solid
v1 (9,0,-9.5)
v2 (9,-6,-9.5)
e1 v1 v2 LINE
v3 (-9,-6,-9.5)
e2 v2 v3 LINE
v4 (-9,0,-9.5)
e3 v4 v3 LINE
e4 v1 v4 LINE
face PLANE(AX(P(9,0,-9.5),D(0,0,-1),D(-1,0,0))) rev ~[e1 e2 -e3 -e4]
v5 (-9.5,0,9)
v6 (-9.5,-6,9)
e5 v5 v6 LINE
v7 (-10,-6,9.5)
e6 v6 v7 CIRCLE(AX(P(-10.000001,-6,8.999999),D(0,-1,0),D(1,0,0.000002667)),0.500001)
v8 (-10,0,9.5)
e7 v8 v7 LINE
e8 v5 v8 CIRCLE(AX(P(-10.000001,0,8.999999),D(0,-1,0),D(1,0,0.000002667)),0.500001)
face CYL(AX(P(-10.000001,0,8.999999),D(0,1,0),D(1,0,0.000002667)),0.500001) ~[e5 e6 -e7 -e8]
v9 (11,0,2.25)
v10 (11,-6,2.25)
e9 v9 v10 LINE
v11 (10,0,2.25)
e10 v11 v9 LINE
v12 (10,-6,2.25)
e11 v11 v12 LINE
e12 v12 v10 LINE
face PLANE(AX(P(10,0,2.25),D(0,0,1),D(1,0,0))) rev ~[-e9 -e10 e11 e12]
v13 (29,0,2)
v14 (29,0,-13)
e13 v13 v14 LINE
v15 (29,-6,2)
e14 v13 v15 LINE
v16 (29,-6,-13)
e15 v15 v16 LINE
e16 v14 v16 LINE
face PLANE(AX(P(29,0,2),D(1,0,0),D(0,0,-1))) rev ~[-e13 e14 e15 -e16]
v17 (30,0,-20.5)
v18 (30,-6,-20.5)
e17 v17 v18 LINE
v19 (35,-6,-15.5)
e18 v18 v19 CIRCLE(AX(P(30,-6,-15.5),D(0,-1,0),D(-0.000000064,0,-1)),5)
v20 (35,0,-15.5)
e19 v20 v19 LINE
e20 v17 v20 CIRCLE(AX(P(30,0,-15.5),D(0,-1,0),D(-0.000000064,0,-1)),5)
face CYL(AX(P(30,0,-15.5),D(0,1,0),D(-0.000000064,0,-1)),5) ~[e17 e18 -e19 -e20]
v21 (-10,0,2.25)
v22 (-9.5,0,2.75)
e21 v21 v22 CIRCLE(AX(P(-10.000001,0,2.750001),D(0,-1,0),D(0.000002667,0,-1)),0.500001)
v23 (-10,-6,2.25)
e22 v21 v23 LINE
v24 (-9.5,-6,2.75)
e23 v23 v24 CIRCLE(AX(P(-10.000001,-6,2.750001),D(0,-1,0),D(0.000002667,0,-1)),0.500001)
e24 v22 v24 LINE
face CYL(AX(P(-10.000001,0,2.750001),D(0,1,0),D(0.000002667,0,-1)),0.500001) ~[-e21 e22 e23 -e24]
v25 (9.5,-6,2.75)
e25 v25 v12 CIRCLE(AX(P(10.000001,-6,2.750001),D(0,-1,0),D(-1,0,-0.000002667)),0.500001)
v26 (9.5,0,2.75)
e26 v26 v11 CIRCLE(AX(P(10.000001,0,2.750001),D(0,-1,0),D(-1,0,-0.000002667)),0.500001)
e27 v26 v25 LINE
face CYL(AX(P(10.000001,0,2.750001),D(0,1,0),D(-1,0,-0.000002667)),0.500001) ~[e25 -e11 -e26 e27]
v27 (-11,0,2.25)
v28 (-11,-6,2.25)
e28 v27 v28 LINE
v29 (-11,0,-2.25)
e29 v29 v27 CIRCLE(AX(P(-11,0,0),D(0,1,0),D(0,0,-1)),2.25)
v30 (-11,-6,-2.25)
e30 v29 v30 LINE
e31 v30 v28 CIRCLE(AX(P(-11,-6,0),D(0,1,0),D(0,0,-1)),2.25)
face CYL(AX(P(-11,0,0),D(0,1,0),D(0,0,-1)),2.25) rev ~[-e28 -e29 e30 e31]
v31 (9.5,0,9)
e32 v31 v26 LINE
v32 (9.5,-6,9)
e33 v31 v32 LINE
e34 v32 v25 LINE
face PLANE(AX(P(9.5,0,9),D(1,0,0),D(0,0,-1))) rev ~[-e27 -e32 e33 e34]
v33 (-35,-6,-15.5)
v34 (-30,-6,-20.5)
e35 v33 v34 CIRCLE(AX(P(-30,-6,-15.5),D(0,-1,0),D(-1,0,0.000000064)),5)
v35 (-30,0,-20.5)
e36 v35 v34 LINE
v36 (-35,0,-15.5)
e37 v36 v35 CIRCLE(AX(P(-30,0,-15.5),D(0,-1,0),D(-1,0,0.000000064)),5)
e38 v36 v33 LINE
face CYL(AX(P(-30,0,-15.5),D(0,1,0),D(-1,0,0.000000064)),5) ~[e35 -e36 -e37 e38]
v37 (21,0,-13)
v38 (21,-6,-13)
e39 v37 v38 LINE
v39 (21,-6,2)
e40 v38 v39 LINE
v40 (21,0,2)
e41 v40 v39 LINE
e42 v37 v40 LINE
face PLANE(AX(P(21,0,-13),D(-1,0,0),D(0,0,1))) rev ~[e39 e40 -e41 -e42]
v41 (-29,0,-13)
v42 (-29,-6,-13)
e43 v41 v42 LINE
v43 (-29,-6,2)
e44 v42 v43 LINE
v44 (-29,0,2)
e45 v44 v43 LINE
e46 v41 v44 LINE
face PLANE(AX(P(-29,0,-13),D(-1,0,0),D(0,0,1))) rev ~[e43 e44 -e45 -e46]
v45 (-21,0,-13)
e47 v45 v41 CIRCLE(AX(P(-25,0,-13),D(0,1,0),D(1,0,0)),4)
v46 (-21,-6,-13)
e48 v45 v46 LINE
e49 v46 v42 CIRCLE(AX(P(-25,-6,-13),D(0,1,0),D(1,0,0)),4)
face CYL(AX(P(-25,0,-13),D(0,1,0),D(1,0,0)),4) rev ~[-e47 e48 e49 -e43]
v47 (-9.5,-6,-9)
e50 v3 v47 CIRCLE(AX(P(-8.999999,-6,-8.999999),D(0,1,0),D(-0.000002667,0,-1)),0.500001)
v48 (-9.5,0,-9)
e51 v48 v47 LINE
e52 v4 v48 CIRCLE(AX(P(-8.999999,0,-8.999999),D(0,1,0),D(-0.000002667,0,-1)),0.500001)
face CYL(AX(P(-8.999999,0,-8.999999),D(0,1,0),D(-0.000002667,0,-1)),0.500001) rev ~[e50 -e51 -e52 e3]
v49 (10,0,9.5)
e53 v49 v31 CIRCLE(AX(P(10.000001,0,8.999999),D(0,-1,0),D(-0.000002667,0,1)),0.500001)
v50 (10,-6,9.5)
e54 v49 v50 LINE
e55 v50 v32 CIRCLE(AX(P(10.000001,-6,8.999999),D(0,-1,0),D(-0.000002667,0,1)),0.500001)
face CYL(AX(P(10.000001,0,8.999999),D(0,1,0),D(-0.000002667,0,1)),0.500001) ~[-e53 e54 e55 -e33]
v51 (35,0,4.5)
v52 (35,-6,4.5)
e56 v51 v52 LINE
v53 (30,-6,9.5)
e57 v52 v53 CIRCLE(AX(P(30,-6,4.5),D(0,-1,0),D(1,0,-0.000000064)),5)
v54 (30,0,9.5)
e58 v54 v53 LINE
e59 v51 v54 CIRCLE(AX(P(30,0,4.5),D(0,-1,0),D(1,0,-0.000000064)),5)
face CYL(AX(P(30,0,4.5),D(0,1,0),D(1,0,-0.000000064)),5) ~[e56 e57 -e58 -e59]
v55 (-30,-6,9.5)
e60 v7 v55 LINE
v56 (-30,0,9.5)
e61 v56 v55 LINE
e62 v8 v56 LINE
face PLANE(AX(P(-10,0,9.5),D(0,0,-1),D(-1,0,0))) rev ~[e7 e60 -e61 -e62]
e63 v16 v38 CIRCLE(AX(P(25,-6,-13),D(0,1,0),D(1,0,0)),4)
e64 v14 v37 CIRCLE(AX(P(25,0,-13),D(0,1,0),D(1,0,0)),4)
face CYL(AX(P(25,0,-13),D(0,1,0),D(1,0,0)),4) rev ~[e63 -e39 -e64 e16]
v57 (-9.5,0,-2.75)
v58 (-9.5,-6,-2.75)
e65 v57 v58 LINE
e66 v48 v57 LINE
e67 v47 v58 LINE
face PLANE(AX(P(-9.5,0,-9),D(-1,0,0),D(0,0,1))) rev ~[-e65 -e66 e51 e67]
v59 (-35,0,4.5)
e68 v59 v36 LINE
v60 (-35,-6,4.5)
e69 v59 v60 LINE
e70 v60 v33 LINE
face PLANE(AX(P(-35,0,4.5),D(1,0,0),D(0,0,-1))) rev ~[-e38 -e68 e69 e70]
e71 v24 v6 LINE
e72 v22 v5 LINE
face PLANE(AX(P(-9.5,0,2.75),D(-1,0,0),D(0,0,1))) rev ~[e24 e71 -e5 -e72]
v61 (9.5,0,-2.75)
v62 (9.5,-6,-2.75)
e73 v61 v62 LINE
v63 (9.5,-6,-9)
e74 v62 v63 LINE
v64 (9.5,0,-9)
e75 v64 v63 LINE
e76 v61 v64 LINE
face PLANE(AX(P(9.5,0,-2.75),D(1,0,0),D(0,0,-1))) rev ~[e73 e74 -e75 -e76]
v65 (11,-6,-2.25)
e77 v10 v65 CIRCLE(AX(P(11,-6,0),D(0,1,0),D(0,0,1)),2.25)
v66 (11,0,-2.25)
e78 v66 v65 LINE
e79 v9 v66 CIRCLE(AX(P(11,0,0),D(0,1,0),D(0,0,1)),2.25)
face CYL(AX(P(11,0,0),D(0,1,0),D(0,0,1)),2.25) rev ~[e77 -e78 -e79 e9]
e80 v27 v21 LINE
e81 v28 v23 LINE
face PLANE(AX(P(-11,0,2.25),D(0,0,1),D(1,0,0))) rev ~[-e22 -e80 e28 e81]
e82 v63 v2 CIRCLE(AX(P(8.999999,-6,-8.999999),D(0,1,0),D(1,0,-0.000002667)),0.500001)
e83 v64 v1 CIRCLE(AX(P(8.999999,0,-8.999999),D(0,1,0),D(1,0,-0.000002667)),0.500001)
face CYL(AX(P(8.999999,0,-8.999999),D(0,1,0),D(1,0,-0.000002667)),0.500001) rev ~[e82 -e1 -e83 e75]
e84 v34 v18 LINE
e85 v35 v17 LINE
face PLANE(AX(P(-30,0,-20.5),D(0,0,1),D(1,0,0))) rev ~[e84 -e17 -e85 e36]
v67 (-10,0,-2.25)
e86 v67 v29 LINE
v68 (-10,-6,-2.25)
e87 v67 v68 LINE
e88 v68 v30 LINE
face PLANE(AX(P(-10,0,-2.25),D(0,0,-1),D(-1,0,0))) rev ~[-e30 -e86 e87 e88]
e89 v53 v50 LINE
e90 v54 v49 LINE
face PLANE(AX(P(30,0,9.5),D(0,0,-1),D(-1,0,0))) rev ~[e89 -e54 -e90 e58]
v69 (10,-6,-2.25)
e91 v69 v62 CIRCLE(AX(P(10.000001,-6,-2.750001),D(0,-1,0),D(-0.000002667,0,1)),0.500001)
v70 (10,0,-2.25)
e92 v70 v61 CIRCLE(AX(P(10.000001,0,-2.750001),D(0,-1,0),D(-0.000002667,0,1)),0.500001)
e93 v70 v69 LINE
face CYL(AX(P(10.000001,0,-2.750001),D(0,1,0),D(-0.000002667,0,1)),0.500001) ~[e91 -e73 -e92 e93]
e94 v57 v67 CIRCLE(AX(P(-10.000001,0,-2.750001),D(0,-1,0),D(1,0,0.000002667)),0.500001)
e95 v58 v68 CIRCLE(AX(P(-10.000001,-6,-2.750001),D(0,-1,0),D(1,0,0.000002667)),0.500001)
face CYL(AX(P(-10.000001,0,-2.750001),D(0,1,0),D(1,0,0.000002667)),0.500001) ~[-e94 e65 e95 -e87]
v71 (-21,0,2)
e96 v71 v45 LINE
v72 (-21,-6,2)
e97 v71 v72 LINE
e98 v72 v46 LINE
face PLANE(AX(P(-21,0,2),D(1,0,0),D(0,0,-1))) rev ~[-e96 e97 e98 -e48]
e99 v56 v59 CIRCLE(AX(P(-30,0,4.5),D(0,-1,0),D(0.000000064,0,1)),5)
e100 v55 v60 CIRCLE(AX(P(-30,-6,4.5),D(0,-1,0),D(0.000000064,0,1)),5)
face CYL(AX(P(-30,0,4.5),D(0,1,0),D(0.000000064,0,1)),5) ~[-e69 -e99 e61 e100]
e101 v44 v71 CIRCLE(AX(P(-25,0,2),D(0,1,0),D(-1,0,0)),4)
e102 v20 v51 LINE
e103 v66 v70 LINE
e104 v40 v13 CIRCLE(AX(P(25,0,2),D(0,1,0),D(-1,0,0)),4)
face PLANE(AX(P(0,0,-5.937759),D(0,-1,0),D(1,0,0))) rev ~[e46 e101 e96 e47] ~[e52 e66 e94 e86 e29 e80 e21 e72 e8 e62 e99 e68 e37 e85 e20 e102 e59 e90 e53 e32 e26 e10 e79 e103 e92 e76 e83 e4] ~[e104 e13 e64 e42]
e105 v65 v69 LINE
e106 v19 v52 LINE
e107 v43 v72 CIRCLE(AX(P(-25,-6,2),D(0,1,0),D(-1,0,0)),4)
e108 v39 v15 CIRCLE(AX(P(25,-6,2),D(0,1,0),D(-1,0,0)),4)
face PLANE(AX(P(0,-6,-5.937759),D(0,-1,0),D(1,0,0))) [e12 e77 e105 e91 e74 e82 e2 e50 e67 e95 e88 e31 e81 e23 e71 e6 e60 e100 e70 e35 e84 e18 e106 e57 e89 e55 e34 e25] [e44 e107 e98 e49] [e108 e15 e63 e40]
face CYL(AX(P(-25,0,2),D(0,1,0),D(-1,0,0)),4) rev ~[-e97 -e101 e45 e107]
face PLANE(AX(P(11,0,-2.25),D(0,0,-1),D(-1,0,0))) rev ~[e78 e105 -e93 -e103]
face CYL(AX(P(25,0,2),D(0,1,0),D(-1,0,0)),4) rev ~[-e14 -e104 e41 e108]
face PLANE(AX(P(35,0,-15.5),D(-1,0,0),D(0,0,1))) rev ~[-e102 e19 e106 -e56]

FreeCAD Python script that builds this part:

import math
import FreeCAD as App
import Part
import Sketcher

V = App.Vector

doc = App.newDocument("Part")
params = doc.addObject("Spreadsheet::Sheet", "Params")
for row, (alias, value) in enumerate([
    ("sketch1_radius", "5 mm"),
    ("sketch1_radius2", "4 mm"),
    ("sketch1_radius3", "0.500001 mm"),
    ("sketch1_width", "1 mm"),
    ("sketch1_width2", "20 mm"),
    ("pad1_length", "6 mm"),
], start=1):
    params.set(f"A{row}", alias)
    params.set(f"B{row}", "=" + value)
    params.setAlias(f"B{row}", alias)

body = doc.addObject("PartDesign::Body", "Body")

sketch1 = body.newObject("Sketcher::SketchObject", "Sketch")
sketch1.AttachmentSupport = (doc.getObject("XZ_Plane"), [""])
sketch1.MapMode = "FlatFace"
sketch1.addGeometry([
    Part.ArcOfCircle(Part.Circle(V(-9, -9, 0), V(0, 0, 1), 0.5), math.radians(-180), math.radians(-90)),
    Part.LineSegment(V(-9.5, -9, 0), V(-9.5, -2.8, 0)),
    Part.ArcOfCircle(Part.Circle(V(-10, -2.8, 0), V(0, 0, 1), 0.5), math.radians(0), math.radians(90)),
    Part.LineSegment(V(-10, -2.2, 0), V(-11, -2.2, 0)),
    Part.ArcOfCircle(Part.Circle(V(-11, 0, 0), V(0, 0, 1), 2.2), math.radians(90), math.radians(270)),
    Part.LineSegment(V(-11, 2.2, 0), V(-10, 2.2, 0)),
    Part.ArcOfCircle(Part.Circle(V(-10, 2.8, 0), V(0, 0, 1), 0.5), math.radians(-90), math.radians(0)),
    Part.LineSegment(V(-9.5, 2.8, 0), V(-9.5, 9, 0)),
    Part.ArcOfCircle(Part.Circle(V(-10, 9, 0), V(0, 0, 1), 0.5), math.radians(0), math.radians(90)),
    Part.LineSegment(V(-10, 9.5, 0), V(-30, 9.5, 0)),
    Part.ArcOfCircle(Part.Circle(V(-30, 4.5, 0), V(0, 0, 1), 5), math.radians(90), math.radians(180)),
    Part.LineSegment(V(-35, 4.5, 0), V(-35, -15.5, 0)),
    Part.ArcOfCircle(Part.Circle(V(-30, -15.5, 0), V(0, 0, 1), 5), math.radians(180), math.radians(270)),
    Part.LineSegment(V(-30, -20.5, 0), V(30, -20.5, 0)),
    Part.ArcOfCircle(Part.Circle(V(30, -15.5, 0), V(0, 0, 1), 5), math.radians(-90), math.radians(0)),
    Part.LineSegment(V(35, -15.5, 0), V(35, 4.5, 0)),
    Part.ArcOfCircle(Part.Circle(V(30, 4.5, 0), V(0, 0, 1), 5), math.radians(0), math.radians(90)),
    Part.LineSegment(V(30, 9.5, 0), V(10, 9.5, 0)),
    Part.ArcOfCircle(Part.Circle(V(10, 9, 0), V(0, 0, 1), 0.5), math.radians(90), math.radians(180)),
    Part.LineSegment(V(9.5, 9, 0), V(9.5, 2.8, 0)),
    Part.ArcOfCircle(Part.Circle(V(10, 2.8, 0), V(0, 0, 1), 0.5), math.radians(-180), math.radians(-90)),
    Part.LineSegment(V(10, 2.2, 0), V(11, 2.2, 0)),
    Part.ArcOfCircle(Part.Circle(V(11, 0, 0), V(0, 0, 1), 2.2), math.radians(-90), math.radians(90)),
    Part.LineSegment(V(11, -2.2, 0), V(10, -2.2, 0)),
    Part.ArcOfCircle(Part.Circle(V(10, -2.8, 0), V(0, 0, 1), 0.5), math.radians(90), math.radians(180)),
    Part.LineSegment(V(9.5, -2.8, 0), V(9.5, -9, 0)),
    Part.ArcOfCircle(Part.Circle(V(9, -9, 0), V(0, 0, 1), 0.5), math.radians(-90), math.radians(0)),
    Part.LineSegment(V(9, -9.5, 0), V(-9, -9.5, 0)),
    Part.ArcOfCircle(Part.Circle(V(-25, -13, 0), V(0, 0, 1), 4), math.radians(180), math.radians(360)),
    Part.LineSegment(V(-29, -13, 0), V(-29, 2, 0)),
    Part.ArcOfCircle(Part.Circle(V(-25, 2, 0), V(0, 0, 1), 4), math.radians(0), math.radians(180)),
    Part.LineSegment(V(-21, 2, 0), V(-21, -13, 0)),
    Part.LineSegment(V(21, -13, 0), V(21, 2, 0)),
    Part.ArcOfCircle(Part.Circle(V(25, 2, 0), V(0, 0, 1), 4), math.radians(0), math.radians(180)),
    Part.LineSegment(V(29, 2, 0), V(29, -13, 0)),
    Part.ArcOfCircle(Part.Circle(V(25, -13, 0), V(0, 0, 1), 4), math.radians(180), math.radians(360)),
], False)
sketch1.addConstraint([
    Sketcher.Constraint("Coincident", 0, 1, 1, 1),
    Sketcher.Constraint("Coincident", 1, 2, 2, 1),
    Sketcher.Constraint("Coincident", 2, 2, 3, 1),
    Sketcher.Constraint("Tangent", 3, 2, 4, 2),
    Sketcher.Constraint("Tangent", 4, 1, 5, 1),
    Sketcher.Constraint("Coincident", 5, 2, 6, 1),
    Sketcher.Constraint("Coincident", 6, 2, 7, 1),
    Sketcher.Constraint("Coincident", 7, 2, 8, 1),
    Sketcher.Constraint("Coincident", 8, 2, 9, 1),
    Sketcher.Constraint("Tangent", 9, 2, 10, 1),
    Sketcher.Constraint("Tangent", 10, 2, 11, 1),
    Sketcher.Constraint("Tangent", 11, 2, 12, 1),
    Sketcher.Constraint("Tangent", 12, 2, 13, 1),
    Sketcher.Constraint("Tangent", 13, 2, 14, 1),
    Sketcher.Constraint("Tangent", 14, 2, 15, 1),
    Sketcher.Constraint("Tangent", 15, 2, 16, 1),
    Sketcher.Constraint("Tangent", 16, 2, 17, 1),
    Sketcher.Constraint("Coincident", 17, 2, 18, 1),
    Sketcher.Constraint("Coincident", 18, 2, 19, 1),
    Sketcher.Constraint("Coincident", 19, 2, 20, 1),
    Sketcher.Constraint("Coincident", 20, 2, 21, 1),
    Sketcher.Constraint("Tangent", 21, 2, 22, 2),
    Sketcher.Constraint("Tangent", 22, 1, 23, 1),
    Sketcher.Constraint("Coincident", 23, 2, 24, 1),
    Sketcher.Constraint("Coincident", 24, 2, 25, 1),
    Sketcher.Constraint("Coincident", 25, 2, 26, 2),
    Sketcher.Constraint("Coincident", 26, 1, 27, 1),
    Sketcher.Constraint("Coincident", 27, 2, 0, 2),
    Sketcher.Constraint("Tangent", 28, 1, 29, 1),
    Sketcher.Constraint("Tangent", 29, 2, 30, 2),
    Sketcher.Constraint("Tangent", 30, 1, 31, 1),
    Sketcher.Constraint("Tangent", 31, 2, 28, 2),
    Sketcher.Constraint("Tangent", 32, 2, 33, 2),
    Sketcher.Constraint("Tangent", 33, 1, 34, 1),
    Sketcher.Constraint("Tangent", 34, 2, 35, 2),
    Sketcher.Constraint("Tangent", 35, 1, 32, 1),
    Sketcher.Constraint("Vertical", 1),
    Sketcher.Constraint("Horizontal", 3),
    Sketcher.Constraint("Horizontal", 5),
    Sketcher.Constraint("Vertical", 7),
    Sketcher.Constraint("Horizontal", 9),
    Sketcher.Constraint("Vertical", 11),
    Sketcher.Constraint("Horizontal", 13),
    Sketcher.Constraint("Vertical", 15),
    Sketcher.Constraint("Horizontal", 17),
    Sketcher.Constraint("Vertical", 19),
    Sketcher.Constraint("Horizontal", 21),
    Sketcher.Constraint("Horizontal", 23),
    Sketcher.Constraint("Vertical", 25),
    Sketcher.Constraint("Horizontal", 27),
    Sketcher.Constraint("Vertical", 29),
    Sketcher.Constraint("Vertical", 31),
    Sketcher.Constraint("Vertical", 32),
    Sketcher.Constraint("Vertical", 34),
    Sketcher.Constraint("Equal", 0, 2),
    Sketcher.Constraint("Equal", 2, 6),
    Sketcher.Constraint("Equal", 6, 8),
    Sketcher.Constraint("Equal", 10, 12),
    Sketcher.Constraint("Equal", 12, 14),
    Sketcher.Constraint("Equal", 14, 16),
    Sketcher.Constraint("Equal", 8, 18),
    Sketcher.Constraint("Equal", 18, 20),
    Sketcher.Constraint("Equal", 4, 22),
    Sketcher.Constraint("Equal", 20, 24),
    Sketcher.Constraint("Equal", 24, 26),
    Sketcher.Constraint("Equal", 30, 33),
    Sketcher.Constraint("Symmetric", 2, 3, 20, 3, -1, 1),
    Sketcher.Constraint("Symmetric", 6, 2, 24, 2, -1, 1),
    Sketcher.Constraint("Symmetric", 10, 3, 16, 3, -2),
    Sketcher.Constraint("Symmetric", 6, 3, 20, 3, -2),
    Sketcher.Constraint("Symmetric", 30, 3, 33, 3, -2),
    Sketcher.Constraint("Horizontal", 28, 3, 35, 3),
    Sketcher.Constraint("Horizontal", 26, 3, 0, 1),
    Sketcher.Constraint("Horizontal", 24, 3, 1, 2),
    Sketcher.Constraint("Horizontal", 20, 3, 6, 2),
    Sketcher.Constraint("Horizontal", 18, 3, 7, 2),
    Sketcher.Constraint("Horizontal", 7, 2, 18, 2),
    Sketcher.Constraint("Horizontal", 6, 2, 19, 2),
    Sketcher.Constraint("Horizontal", 0, 1, 25, 2),
    Sketcher.Constraint("Vertical", 8, 3, 2, 2),
    Sketcher.Constraint("Vertical", 2, 2, 5, 2),
    Sketcher.Constraint("Vertical", 5, 2, 8, 2),
    Sketcher.Constraint("Vertical", 24, 3, 17, 2),
    Sketcher.Constraint("Vertical", 17, 2, 20, 2),
    Sketcher.Constraint("Vertical", 20, 2, 23, 2),
    Sketcher.Constraint("Vertical", 0, 3, 27, 2),
    Sketcher.Constraint("Equal", 5, 21),
    Sketcher.Constraint("Equal", 1, 7),
    Sketcher.Constraint("Equal", 17, 11),
    Sketcher.Constraint("Radius", 10, 5.0),
    Sketcher.Constraint("Radius", 28, 4.0),
    Sketcher.Constraint("Radius", 0, 0.500001),
    Sketcher.Constraint("DistanceX", 3, 2, 3, 1, 1.0),
    Sketcher.Constraint("DistanceX", 9, 2, 9, 1, 20.0),
    Sketcher.Constraint("DistanceX", 13, 1, 13, 2, 60.0),
    Sketcher.Constraint("DistanceX", 27, 2, 27, 1, 18.0),
    Sketcher.Constraint("DistanceY", 29, 1, 29, 2, 15.0),
    Sketcher.Constraint("Radius", 4, 2.25),
    Sketcher.Constraint("DistanceY", 0, 3, -1, 1, 8.999999),
    Sketcher.Constraint("DistanceX", 28, 3, -1, 1, 25.0),
    Sketcher.Constraint("DistanceY", 28, 3, -1, 1, 13.0),
])
sketch1.setExpression("Constraints[89]", "Params.sketch1_radius")
sketch1.setExpression("Constraints[90]", "Params.sketch1_radius2")
sketch1.setExpression("Constraints[91]", "Params.sketch1_radius3")
sketch1.setExpression("Constraints[92]", "Params.sketch1_width")
sketch1.setExpression("Constraints[93]", "Params.sketch1_width2")
pad1 = body.newObject("PartDesign::Pad", "Pad")
pad1.Profile = sketch1
pad1.setExpression("Length", "Params.pad1_length")

doc.recompute()
